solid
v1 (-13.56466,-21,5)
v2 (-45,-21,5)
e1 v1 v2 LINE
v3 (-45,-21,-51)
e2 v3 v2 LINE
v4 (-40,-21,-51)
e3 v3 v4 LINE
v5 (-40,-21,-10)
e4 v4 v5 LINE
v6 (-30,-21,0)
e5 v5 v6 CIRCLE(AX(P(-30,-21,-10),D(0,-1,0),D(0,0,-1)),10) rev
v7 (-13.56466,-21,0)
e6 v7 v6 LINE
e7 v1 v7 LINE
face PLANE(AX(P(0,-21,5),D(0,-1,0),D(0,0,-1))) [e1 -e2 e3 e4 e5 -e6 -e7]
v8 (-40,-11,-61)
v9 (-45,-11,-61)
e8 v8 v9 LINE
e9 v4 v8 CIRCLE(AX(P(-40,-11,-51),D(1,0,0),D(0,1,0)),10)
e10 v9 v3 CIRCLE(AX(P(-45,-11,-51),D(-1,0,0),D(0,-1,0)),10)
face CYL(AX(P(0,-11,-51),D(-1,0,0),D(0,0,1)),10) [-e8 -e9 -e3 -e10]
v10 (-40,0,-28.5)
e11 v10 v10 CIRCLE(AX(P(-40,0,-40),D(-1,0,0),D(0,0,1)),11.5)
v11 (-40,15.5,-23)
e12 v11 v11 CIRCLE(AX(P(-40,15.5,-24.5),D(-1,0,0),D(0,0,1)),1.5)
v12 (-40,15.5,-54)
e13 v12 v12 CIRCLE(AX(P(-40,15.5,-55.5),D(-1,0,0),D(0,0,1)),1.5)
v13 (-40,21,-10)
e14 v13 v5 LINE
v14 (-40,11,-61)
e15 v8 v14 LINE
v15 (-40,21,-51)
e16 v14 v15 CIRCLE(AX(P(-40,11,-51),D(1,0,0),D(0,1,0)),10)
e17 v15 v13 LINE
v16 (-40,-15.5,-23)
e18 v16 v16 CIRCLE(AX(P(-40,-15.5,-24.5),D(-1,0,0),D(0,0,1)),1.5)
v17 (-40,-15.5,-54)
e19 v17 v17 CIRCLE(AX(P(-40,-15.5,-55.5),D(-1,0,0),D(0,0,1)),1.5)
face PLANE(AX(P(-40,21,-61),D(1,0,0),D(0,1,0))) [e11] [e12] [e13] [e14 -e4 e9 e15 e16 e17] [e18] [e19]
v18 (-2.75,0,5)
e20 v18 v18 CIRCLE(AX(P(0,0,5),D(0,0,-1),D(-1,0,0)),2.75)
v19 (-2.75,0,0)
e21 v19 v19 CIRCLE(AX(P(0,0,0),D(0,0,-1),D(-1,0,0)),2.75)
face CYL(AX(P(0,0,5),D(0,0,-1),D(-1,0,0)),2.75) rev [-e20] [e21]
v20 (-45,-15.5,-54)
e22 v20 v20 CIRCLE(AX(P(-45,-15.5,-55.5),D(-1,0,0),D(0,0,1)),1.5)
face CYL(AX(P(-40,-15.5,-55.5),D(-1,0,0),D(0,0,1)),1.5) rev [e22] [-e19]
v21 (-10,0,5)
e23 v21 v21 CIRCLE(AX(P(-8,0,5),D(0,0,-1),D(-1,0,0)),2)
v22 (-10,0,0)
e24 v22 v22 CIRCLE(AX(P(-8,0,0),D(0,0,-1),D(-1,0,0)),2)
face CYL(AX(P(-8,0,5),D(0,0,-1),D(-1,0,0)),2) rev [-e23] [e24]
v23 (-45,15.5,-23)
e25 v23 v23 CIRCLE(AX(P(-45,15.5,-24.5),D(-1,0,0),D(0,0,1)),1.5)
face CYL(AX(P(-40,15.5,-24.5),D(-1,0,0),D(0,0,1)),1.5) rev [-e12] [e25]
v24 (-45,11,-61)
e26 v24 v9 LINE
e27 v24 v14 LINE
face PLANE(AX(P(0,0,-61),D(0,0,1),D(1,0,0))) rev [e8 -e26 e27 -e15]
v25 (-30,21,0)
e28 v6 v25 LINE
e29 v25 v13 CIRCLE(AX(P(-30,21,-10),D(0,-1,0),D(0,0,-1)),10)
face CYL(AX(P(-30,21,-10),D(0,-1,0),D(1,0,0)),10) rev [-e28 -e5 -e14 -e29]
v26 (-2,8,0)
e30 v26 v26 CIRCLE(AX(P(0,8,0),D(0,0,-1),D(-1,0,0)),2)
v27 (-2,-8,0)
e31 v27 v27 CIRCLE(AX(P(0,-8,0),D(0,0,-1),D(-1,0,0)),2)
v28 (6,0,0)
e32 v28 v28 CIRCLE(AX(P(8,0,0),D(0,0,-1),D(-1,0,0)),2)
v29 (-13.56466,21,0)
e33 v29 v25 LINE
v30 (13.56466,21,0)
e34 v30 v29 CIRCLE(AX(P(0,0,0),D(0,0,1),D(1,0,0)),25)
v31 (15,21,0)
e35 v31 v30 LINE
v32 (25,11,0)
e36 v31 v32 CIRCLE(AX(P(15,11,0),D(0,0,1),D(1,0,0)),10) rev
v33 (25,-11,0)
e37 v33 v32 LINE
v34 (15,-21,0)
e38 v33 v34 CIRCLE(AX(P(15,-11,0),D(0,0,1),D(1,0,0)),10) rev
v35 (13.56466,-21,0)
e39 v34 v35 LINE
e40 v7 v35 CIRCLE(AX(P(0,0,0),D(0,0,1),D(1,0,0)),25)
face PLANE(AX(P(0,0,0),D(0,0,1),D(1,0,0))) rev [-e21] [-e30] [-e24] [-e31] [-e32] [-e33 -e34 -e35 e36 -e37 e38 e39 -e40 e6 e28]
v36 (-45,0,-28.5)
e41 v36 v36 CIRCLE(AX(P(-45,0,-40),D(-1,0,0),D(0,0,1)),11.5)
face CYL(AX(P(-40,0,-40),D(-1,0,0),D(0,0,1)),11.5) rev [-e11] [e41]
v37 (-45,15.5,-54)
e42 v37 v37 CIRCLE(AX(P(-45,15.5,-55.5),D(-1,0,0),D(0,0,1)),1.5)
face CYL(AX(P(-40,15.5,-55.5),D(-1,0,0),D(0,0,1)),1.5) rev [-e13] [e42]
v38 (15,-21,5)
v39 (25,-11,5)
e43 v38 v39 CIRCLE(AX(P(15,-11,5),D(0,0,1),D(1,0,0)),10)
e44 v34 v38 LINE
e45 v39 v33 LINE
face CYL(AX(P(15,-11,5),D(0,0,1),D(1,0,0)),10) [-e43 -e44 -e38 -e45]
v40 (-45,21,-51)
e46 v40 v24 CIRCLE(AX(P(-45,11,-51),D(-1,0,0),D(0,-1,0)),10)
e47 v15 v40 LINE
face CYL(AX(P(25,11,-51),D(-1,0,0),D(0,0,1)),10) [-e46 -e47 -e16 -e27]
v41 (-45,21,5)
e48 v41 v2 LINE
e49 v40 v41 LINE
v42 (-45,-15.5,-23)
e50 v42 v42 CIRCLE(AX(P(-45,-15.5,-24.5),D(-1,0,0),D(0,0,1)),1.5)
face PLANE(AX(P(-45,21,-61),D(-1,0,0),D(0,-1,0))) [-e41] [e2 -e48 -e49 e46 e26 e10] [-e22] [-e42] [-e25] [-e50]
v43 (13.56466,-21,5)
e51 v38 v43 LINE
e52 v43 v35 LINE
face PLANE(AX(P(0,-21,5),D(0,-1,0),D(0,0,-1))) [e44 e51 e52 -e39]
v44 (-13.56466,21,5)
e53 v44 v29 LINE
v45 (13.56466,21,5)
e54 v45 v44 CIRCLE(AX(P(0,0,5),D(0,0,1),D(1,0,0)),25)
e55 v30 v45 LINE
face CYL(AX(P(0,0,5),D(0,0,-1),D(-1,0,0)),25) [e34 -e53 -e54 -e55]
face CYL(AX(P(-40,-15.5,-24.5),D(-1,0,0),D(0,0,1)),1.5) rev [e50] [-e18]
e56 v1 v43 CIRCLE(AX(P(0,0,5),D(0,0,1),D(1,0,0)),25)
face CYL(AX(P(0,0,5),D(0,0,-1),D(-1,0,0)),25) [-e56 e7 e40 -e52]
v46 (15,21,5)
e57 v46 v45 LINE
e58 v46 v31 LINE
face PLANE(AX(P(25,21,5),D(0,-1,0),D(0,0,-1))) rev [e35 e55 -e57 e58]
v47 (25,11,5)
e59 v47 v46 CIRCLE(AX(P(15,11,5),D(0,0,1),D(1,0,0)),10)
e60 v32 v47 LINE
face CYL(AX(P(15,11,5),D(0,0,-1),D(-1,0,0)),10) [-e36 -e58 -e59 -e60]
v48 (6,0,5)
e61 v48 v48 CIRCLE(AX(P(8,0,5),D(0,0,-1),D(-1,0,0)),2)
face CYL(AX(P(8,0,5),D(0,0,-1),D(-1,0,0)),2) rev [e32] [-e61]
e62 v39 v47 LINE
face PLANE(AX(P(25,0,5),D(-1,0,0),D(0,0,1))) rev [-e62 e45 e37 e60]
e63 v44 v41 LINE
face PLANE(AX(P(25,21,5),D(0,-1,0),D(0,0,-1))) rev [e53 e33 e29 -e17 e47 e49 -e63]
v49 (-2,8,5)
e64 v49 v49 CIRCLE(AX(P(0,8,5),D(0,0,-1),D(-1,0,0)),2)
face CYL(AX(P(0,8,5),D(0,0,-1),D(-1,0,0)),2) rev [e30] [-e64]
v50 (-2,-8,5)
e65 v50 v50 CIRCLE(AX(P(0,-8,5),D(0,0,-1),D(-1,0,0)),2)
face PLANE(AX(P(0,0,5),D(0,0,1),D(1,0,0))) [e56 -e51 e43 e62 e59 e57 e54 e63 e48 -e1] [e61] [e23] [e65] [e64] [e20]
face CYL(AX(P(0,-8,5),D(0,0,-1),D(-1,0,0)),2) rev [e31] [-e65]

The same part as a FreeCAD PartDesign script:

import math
import FreeCAD as App
import Part
import Sketcher
from FreeCAD import Vector
Q = App.Units.Quantity


def edges_at(feature, points):
    """Names of the edges that pass closest to the given points."""
    edges = feature.Shape.Edges
    near = lambda p: min(range(len(edges)), key=lambda i: edges[i].distToShape(Part.Vertex(*p))[0])
    return sorted({f"Edge{near(p) + 1}" for p in points})


def add_polygon(sketch, points):
    """Adds a closed chain of lines whose ends are joined by coincident constraints."""
    first, n = sketch.GeometryCount, len(points)
    for a, b in zip(points, points[1:] + points[:1]):
        sketch.addGeometry(Part.LineSegment(App.Vector(*a, 0), App.Vector(*b, 0)), False)
    for i in range(n):
        sketch.addConstraint(Sketcher.Constraint("Coincident", first + i, 2, first + (i + 1) % n, 1))

doc = App.newDocument("Part")
body = doc.addObject("PartDesign::Body", "Body")

sketch1 = body.newObject("Sketcher::SketchObject", "Sketch")
sketch1.AttachmentSupport = (doc.getObject("XY_Plane"), [""])
sketch1.MapMode = "FlatFace"
sketch1.addGeometry(Part.LineSegment(Vector(13.56466, -21, 0), Vector(25, -21, 0)), False)
sketch1.addGeometry(Part.LineSegment(Vector(25, -21, 0), Vector(25, 21, 0)), False)
sketch1.addGeometry(Part.LineSegment(Vector(25, 21, 0), Vector(13.56466, 21, 0)), False)
sketch1.addGeometry(Part.ArcOfCircle(Part.Circle(Vector(0, 0, 0), Vector(0, 0, 1), 25), math.radians(57.14012), math.radians(122.85988)), False)
sketch1.addGeometry(Part.LineSegment(Vector(-13.56466, 21, 0), Vector(-40, 21, 0)), False)
sketch1.addGeometry(Part.LineSegment(Vector(-40, 21, 0), Vector(-40, -21, 0)), False)
sketch1.addGeometry(Part.LineSegment(Vector(-40, -21, 0), Vector(-13.56466, -21, 0)), False)
sketch1.addGeometry(Part.ArcOfCircle(Part.Circle(Vector(0, 0, 0), Vector(0, 0, 1), 25), math.radians(-122.85988), math.radians(-57.14012)), False)
sketch1.addConstraint(Sketcher.Constraint("Coincident", 0, 2, 1, 1))
sketch1.addConstraint(Sketcher.Constraint("Coincident", 1, 2, 2, 1))
sketch1.addConstraint(Sketcher.Constraint("Coincident", 2, 2, 3, 1))
sketch1.addConstraint(Sketcher.Constraint("Coincident", 3, 2, 4, 1))
sketch1.addConstraint(Sketcher.Constraint("Coincident", 4, 2, 5, 1))
sketch1.addConstraint(Sketcher.Constraint("Coincident", 5, 2, 6, 1))
sketch1.addConstraint(Sketcher.Constraint("Coincident", 6, 2, 7, 1))
sketch1.addConstraint(Sketcher.Constraint("Coincident", 7, 2, 0, 1))
sketch1.addConstraint(Sketcher.Constraint("Horizontal", 0))
sketch1.addConstraint(Sketcher.Constraint("Vertical", 1))
sketch1.addConstraint(Sketcher.Constraint("Horizontal", 2))
sketch1.addConstraint(Sketcher.Constraint("Horizontal", 4))
sketch1.addConstraint(Sketcher.Constraint("Vertical", 5))
sketch1.addConstraint(Sketcher.Constraint("Horizontal", 6))
sketch1.addConstraint(Sketcher.Constraint("Coincident", 3, 3, -1, 1))
sketch1.addConstraint(Sketcher.Constraint("Coincident", 7, 3, -1, 1))
sketch1.addConstraint(Sketcher.Constraint("Equal", 3, 7))
sketch1.addConstraint(Sketcher.Constraint("Horizontal", 2, 2, 3, 2))
sketch1.addConstraint(Sketcher.Constraint("Horizontal", 0, 2, 5, 2))
sketch1.addConstraint(Sketcher.Constraint("Vertical", 3, 2, 6, 2))
sketch1.addConstraint(Sketcher.Constraint("Radius", 3, Q("25 mm")))
sketch1.addConstraint(Sketcher.Constraint("DistanceY", 1, 1, 1, 2, Q("42 mm")))
sketch1.addConstraint(Sketcher.Constraint("DistanceX", -1, 1, 0, 2, Q("25 mm")))
sketch1.addConstraint(Sketcher.Constraint("DistanceX", 4, 2, -1, 1, Q("40 mm")))
pad1 = body.newObject("PartDesign::Pad", "Pad")
pad1.Profile = sketch1
pad1.Length = 5

sketch2 = body.newObject("Sketcher::SketchObject", "Sketch001")
sketch2.AttachmentSupport = (doc.getObject("XY_Plane"), [""])
sketch2.MapMode = "FlatFace"
sketch2.AttachmentOffset = App.Placement(Vector(0, 0, 5), App.Rotation())
add_polygon(sketch2, [(-45, 21), (-45, -21), (-40, -21), (-40, 21)])
sketch2.addConstraint(Sketcher.Constraint("Vertical", 0))
sketch2.addConstraint(Sketcher.Constraint("Horizontal", 1))
sketch2.addConstraint(Sketcher.Constraint("Vertical", 2))
sketch2.addConstraint(Sketcher.Constraint("Horizontal", 3))
sketch2.addConstraint(Sketcher.Constraint("DistanceX", 1, 1, 1, 2, Q("5 mm")))
sketch2.addConstraint(Sketcher.Constraint("DistanceY", 0, 2, 0, 1, Q("42 mm")))
sketch2.addConstraint(Sketcher.Constraint("DistanceX", 0, 2, -1, 1, Q("45 mm")))
sketch2.addConstraint(Sketcher.Constraint("DistanceY", 0, 2, -1, 1, Q("21 mm")))
pad2 = body.newObject("PartDesign::Pad", "Pad001")
pad2.Profile = sketch2
pad2.Length = 66
pad2.Reversed = True

sketch3 = body.newObject("Sketcher::SketchObject", "Sketch002")
sketch3.AttachmentSupport = (doc.getObject("YZ_Plane"), [""])
sketch3.MapMode = "FlatFace"
sketch3.AttachmentOffset = App.Placement(Vector(0, 0, -45), App.Rotation())
sketch3.addGeometry(Part.Circle(Vector(0, -40, 0), Vector(0, 0, 1), 11.5), False)
sketch3.addGeometry(Part.Circle(Vector(15.5, -55.5, 0), Vector(0, 0, 1), 1.5), False)
sketch3.addGeometry(Part.Circle(Vector(-15.5, -55.5, 0), Vector(0, 0, 1), 1.5), False)
sketch3.addGeometry(Part.Circle(Vector(15.5, -24.5, 0), Vector(0, 0, 1), 1.5), False)
sketch3.addGeometry(Part.Circle(Vector(-15.5, -24.5, 0), Vector(0, 0, 1), 1.5), False)
sketch3.addGeometry(Part.Circle(Vector(74.5, 34.5, 0), Vector(0, 0, 1), 1.5), False)
sketch3.addConstraint(Sketcher.Constraint("Equal", 1, 2))
sketch3.addConstraint(Sketcher.Constraint("Equal", 2, 3))
sketch3.addConstraint(Sketcher.Constraint("Equal", 3, 4))
sketch3.addConstraint(Sketcher.Constraint("Equal", 4, 5))
sketch3.addConstraint(Sketcher.Constraint("Symmetric", 1, 3, 2, 3, -2))
sketch3.addConstraint(Sketcher.Constraint("Symmetric", 3, 3, 4, 3, -2))
sketch3.addConstraint(Sketcher.Constraint("PointOnObject", 0, 3, -2))
sketch3.addConstraint(Sketcher.Constraint("Vertical", 1, 3, 3, 3))
sketch3.addConstraint(Sketcher.Constraint("Diameter", 0, Q("23 mm")))
sketch3.addConstraint(Sketcher.Constraint("Diameter", 1, Q("3 mm")))
sketch3.addConstraint(Sketcher.Constraint("DistanceY", 0, 3, -1, 1, Q("40 mm")))
sketch3.addConstraint(Sketcher.Constraint("DistanceX", 2, 3, 1, 3, Q("31 mm")))
sketch3.addConstraint(Sketcher.Constraint("DistanceY", 1, 3, 3, 3, Q("31 mm")))
sketch3.addConstraint(Sketcher.Constraint("DistanceX", 3, 3, 5, 3, Q("59 mm")))
sketch3.addConstraint(Sketcher.Constraint("DistanceY", 3, 3, 5, 3, Q("59 mm")))
sketch3.addConstraint(Sketcher.Constraint("DistanceY", 1, 3, -1, 1, Q("55.5 mm")))
pocket1 = body.newObject("PartDesign::Pocket", "Pocket")
pocket1.Profile = sketch3
pocket1.Length = 5
pocket1.Reversed = True

sketch4 = body.newObject("Sketcher::SketchObject", "Sketch003")
sketch4.AttachmentSupport = (doc.getObject("XY_Plane"), [""])
sketch4.MapMode = "FlatFace"
sketch4.addGeometry(Part.Circle(Vector(0, 8, 0), Vector(0, 0, 1), 2), False)
sketch4.addGeometry(Part.Circle(Vector(-8, 0, 0), Vector(0, 0, 1), 2), False)
sketch4.addGeometry(Part.Circle(Vector(0, -8, 0), Vector(0, 0, 1), 2), False)
sketch4.addGeometry(Part.Circle(Vector(8, 0, 0), Vector(0, 0, 1), 2), False)
sketch4.addGeometry(Part.Circle(Vector(0, 0, 0), Vector(0, 0, 1), 2.75), False)
sketch4.addConstraint(Sketcher.Constraint("Coincident", 4, 3, -1, 1))
sketch4.addConstraint(Sketcher.Constraint("Equal", 0, 1))
sketch4.addConstraint(Sketcher.Constraint("Equal", 1, 2))
sketch4.addConstraint(Sketcher.Constraint("Equal", 2, 3))
sketch4.addConstraint(Sketcher.Constraint("Symmetric", 0, 3, 2, 3, -1, 1))
sketch4.addConstraint(Sketcher.Constraint("Symmetric", 1, 3, 3, 3, -1, 1))
sketch4.addConstraint(Sketcher.Constraint("PointOnObject", 0, 3, -2))
sketch4.addConstraint(Sketcher.Constraint("PointOnObject", 1, 3, -1))
sketch4.addConstraint(Sketcher.Constraint("Diameter", 0, Q("4 mm")))
sketch4.addConstraint(Sketcher.Constraint("Diameter", 4, Q("5.5 mm")))
sketch4.addConstraint(Sketcher.Constraint("DistanceY", -1, 1, 0, 3, Q("8 mm")))
sketch4.addConstraint(Sketcher.Constraint("DistanceX", 1, 3, -1, 1, Q("8 mm")))
pocket2 = body.newObject("PartDesign::Pocket", "Pocket001")
pocket2.Profile = sketch4
pocket2.Type = "ThroughAll"
pocket2.Reversed = True
doc.recompute()

fillet = body.newObject("PartDesign::Fillet", "Fillet")
fillet.Base = (pocket2, edges_at(pocket2, [(-40, 0, 0)]))
fillet.Radius = 10
doc.recompute()

fillet2 = body.newObject("PartDesign::Fillet", "Fillet001")
fillet2.Base = (fillet, edges_at(fillet, [
    (25, -21, 2.5),
    (25, 21, 2.5),
    (-42.5, 21, -61),
    (-42.5, -21, -61),
]))
fillet2.Radius = 10

doc.recompute()
